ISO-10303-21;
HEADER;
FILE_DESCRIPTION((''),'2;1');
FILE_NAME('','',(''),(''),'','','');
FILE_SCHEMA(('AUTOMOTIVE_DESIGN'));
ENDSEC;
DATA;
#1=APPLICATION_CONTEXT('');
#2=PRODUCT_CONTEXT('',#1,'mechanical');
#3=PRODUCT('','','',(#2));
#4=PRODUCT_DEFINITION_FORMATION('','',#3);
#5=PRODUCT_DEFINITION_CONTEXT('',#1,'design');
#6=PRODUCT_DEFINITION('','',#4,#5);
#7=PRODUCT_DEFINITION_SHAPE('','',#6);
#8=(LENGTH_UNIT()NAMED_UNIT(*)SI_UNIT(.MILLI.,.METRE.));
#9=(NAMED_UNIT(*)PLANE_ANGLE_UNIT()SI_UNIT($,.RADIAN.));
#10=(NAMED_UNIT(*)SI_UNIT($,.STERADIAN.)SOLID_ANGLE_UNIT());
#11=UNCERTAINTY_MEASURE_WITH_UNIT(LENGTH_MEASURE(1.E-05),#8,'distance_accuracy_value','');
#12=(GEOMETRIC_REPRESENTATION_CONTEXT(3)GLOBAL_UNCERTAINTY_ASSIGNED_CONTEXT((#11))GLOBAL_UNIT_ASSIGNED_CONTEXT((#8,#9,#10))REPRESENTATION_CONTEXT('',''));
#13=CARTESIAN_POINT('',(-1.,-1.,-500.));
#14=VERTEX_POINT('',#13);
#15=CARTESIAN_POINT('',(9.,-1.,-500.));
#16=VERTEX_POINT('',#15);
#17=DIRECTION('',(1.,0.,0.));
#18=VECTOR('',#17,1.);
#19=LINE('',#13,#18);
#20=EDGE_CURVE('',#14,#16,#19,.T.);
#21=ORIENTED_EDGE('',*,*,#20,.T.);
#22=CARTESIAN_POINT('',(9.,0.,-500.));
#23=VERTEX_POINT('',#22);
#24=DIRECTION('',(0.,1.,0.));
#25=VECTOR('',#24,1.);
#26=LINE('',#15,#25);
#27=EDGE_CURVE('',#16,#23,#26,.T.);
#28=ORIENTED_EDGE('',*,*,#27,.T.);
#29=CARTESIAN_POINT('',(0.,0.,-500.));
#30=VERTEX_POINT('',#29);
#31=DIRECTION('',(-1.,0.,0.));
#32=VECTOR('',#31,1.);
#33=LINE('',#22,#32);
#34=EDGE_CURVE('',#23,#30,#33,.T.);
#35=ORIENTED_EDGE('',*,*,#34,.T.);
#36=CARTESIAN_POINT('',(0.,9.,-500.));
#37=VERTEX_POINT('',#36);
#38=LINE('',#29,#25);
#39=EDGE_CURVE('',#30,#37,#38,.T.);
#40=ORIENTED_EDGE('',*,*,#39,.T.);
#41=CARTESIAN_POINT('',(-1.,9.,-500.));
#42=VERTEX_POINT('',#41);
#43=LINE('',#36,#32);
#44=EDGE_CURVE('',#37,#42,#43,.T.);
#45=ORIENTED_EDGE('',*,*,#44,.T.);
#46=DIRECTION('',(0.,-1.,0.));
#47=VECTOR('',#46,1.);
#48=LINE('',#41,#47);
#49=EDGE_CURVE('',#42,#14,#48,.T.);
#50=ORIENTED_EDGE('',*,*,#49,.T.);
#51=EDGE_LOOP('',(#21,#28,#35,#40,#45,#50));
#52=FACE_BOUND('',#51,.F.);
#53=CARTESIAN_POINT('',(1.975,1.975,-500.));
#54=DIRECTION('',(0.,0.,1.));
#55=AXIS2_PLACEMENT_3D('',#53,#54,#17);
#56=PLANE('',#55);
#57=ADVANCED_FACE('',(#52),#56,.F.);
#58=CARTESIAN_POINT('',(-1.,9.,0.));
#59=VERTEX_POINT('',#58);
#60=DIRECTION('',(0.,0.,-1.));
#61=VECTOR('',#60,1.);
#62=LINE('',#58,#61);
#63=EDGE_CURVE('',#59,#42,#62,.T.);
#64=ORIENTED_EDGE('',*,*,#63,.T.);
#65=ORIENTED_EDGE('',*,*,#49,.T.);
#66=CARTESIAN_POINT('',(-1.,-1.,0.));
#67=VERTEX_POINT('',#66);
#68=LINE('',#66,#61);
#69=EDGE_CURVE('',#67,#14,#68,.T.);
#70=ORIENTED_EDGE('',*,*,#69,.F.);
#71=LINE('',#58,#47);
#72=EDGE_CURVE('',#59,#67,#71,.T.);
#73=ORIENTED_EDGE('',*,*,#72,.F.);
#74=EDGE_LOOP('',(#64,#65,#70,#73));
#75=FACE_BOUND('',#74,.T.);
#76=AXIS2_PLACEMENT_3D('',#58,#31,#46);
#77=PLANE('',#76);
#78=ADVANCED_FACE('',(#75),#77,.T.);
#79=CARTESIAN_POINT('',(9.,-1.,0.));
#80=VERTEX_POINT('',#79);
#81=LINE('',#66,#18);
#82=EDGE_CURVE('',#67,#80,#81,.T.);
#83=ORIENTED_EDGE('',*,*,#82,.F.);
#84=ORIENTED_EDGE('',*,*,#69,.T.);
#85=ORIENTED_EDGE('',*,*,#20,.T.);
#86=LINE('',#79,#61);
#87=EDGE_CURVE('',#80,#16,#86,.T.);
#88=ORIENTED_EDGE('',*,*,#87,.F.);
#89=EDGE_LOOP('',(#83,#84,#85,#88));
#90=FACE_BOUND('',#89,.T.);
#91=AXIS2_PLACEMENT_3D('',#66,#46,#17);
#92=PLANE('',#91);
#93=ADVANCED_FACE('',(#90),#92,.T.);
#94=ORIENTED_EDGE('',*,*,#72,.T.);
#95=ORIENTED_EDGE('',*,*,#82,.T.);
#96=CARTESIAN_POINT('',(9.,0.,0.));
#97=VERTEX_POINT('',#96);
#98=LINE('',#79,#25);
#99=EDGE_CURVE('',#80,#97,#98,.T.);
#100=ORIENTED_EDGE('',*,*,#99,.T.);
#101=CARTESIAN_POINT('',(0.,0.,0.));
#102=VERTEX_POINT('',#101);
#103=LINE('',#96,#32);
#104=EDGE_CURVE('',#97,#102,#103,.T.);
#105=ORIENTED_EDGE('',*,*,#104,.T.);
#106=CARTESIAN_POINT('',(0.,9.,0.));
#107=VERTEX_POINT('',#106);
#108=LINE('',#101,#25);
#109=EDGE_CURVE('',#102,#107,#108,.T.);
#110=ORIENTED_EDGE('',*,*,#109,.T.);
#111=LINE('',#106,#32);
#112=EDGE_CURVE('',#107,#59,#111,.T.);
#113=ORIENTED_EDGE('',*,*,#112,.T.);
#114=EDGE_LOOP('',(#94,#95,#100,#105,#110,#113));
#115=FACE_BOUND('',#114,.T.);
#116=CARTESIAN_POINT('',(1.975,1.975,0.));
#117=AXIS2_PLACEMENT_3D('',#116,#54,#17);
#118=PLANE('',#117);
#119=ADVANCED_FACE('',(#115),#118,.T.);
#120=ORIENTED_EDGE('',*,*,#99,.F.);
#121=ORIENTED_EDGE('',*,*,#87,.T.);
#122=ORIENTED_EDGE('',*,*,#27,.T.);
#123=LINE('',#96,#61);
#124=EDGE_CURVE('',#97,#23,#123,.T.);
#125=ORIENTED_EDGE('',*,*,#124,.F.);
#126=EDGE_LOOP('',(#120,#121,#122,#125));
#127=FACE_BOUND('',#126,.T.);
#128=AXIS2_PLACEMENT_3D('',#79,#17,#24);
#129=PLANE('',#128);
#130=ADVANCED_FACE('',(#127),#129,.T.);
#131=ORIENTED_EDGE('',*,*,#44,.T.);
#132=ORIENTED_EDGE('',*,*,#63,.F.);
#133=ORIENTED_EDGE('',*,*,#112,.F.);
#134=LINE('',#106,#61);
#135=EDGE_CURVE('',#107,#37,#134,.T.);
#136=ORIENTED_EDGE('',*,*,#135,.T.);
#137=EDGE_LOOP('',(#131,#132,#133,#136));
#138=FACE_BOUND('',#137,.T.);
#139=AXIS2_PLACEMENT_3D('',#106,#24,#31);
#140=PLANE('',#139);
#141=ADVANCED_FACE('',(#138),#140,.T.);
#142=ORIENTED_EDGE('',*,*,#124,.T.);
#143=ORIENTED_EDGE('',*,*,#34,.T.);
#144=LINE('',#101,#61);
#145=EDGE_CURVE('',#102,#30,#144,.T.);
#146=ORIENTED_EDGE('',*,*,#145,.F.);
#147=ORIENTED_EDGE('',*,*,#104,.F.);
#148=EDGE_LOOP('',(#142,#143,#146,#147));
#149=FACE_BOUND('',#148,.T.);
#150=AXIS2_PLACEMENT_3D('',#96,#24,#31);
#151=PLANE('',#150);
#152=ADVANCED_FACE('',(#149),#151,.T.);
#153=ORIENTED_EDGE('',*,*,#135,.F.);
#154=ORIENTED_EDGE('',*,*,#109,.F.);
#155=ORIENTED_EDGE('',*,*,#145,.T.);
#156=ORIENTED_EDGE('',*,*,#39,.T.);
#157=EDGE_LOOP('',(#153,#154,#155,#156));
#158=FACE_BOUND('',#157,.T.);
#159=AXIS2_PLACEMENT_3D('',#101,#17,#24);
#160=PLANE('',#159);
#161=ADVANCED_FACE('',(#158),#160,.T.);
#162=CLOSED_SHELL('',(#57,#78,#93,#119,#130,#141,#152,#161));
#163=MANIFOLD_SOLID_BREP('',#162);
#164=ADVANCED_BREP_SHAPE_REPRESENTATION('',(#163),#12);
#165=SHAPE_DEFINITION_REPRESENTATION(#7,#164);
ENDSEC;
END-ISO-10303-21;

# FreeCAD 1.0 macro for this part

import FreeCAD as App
import Part
import Sketcher
from FreeCAD import Vector
Q = App.Units.Quantity

doc = App.newDocument("Part")
body = doc.addObject("PartDesign::Body", "Body")

# Sketch on XY plane
sketch1 = body.newObject("Sketcher::SketchObject", "Sketch")
sketch1.AttachmentSupport = (doc.getObject("XY_Plane"), [""])
sketch1.MapMode = "FlatFace"
sketch1.addGeometry([
    Part.LineSegment(Vector(0, 0, 0), Vector(0, 9, 0)),  # 0
    Part.LineSegment(Vector(0, 9, 0), Vector(-1, 9, 0)),  # 1
    Part.LineSegment(Vector(-1, 9, 0), Vector(-1, -1, 0)),  # 2
    Part.LineSegment(Vector(-1, -1, 0), Vector(9, -1, 0)),  # 3
    Part.LineSegment(Vector(9, -1, 0), Vector(9, 0, 0)),  # 4
    Part.LineSegment(Vector(9, 0, 0), Vector(0, 0, 0)),  # 5
], False)
sketch1.addConstraint([
    Sketcher.Constraint("Coincident", 0, 2, 1, 1),
    Sketcher.Constraint("Coincident", 1, 2, 2, 1),
    Sketcher.Constraint("Coincident", 2, 2, 3, 1),
    Sketcher.Constraint("Coincident", 3, 2, 4, 1),
    Sketcher.Constraint("Coincident", 4, 2, 5, 1),
    Sketcher.Constraint("Coincident", 5, 2, 0, 1),
    Sketcher.Constraint("Vertical", 0),
    Sketcher.Constraint("Horizontal", 1),
    Sketcher.Constraint("Vertical", 2),
    Sketcher.Constraint("Horizontal", 3),
    Sketcher.Constraint("Vertical", 4),
    Sketcher.Constraint("Horizontal", 5),
    Sketcher.Constraint("Coincident", 5, 2, -1, 1),
    Sketcher.Constraint("Equal", 5, 0),
    Sketcher.Constraint("Equal", 3, 2),
    Sketcher.Constraint("DistanceX", 1, 2, 1, 1, Q("1 mm")),
    Sketcher.Constraint("DistanceX", 3, 1, 3, 2, Q("10 mm")),
])
pad1 = body.newObject("PartDesign::Pad", "Pad")
pad1.Profile = sketch1
pad1.Length = 500
pad1.Reversed = True

doc.recompute()
